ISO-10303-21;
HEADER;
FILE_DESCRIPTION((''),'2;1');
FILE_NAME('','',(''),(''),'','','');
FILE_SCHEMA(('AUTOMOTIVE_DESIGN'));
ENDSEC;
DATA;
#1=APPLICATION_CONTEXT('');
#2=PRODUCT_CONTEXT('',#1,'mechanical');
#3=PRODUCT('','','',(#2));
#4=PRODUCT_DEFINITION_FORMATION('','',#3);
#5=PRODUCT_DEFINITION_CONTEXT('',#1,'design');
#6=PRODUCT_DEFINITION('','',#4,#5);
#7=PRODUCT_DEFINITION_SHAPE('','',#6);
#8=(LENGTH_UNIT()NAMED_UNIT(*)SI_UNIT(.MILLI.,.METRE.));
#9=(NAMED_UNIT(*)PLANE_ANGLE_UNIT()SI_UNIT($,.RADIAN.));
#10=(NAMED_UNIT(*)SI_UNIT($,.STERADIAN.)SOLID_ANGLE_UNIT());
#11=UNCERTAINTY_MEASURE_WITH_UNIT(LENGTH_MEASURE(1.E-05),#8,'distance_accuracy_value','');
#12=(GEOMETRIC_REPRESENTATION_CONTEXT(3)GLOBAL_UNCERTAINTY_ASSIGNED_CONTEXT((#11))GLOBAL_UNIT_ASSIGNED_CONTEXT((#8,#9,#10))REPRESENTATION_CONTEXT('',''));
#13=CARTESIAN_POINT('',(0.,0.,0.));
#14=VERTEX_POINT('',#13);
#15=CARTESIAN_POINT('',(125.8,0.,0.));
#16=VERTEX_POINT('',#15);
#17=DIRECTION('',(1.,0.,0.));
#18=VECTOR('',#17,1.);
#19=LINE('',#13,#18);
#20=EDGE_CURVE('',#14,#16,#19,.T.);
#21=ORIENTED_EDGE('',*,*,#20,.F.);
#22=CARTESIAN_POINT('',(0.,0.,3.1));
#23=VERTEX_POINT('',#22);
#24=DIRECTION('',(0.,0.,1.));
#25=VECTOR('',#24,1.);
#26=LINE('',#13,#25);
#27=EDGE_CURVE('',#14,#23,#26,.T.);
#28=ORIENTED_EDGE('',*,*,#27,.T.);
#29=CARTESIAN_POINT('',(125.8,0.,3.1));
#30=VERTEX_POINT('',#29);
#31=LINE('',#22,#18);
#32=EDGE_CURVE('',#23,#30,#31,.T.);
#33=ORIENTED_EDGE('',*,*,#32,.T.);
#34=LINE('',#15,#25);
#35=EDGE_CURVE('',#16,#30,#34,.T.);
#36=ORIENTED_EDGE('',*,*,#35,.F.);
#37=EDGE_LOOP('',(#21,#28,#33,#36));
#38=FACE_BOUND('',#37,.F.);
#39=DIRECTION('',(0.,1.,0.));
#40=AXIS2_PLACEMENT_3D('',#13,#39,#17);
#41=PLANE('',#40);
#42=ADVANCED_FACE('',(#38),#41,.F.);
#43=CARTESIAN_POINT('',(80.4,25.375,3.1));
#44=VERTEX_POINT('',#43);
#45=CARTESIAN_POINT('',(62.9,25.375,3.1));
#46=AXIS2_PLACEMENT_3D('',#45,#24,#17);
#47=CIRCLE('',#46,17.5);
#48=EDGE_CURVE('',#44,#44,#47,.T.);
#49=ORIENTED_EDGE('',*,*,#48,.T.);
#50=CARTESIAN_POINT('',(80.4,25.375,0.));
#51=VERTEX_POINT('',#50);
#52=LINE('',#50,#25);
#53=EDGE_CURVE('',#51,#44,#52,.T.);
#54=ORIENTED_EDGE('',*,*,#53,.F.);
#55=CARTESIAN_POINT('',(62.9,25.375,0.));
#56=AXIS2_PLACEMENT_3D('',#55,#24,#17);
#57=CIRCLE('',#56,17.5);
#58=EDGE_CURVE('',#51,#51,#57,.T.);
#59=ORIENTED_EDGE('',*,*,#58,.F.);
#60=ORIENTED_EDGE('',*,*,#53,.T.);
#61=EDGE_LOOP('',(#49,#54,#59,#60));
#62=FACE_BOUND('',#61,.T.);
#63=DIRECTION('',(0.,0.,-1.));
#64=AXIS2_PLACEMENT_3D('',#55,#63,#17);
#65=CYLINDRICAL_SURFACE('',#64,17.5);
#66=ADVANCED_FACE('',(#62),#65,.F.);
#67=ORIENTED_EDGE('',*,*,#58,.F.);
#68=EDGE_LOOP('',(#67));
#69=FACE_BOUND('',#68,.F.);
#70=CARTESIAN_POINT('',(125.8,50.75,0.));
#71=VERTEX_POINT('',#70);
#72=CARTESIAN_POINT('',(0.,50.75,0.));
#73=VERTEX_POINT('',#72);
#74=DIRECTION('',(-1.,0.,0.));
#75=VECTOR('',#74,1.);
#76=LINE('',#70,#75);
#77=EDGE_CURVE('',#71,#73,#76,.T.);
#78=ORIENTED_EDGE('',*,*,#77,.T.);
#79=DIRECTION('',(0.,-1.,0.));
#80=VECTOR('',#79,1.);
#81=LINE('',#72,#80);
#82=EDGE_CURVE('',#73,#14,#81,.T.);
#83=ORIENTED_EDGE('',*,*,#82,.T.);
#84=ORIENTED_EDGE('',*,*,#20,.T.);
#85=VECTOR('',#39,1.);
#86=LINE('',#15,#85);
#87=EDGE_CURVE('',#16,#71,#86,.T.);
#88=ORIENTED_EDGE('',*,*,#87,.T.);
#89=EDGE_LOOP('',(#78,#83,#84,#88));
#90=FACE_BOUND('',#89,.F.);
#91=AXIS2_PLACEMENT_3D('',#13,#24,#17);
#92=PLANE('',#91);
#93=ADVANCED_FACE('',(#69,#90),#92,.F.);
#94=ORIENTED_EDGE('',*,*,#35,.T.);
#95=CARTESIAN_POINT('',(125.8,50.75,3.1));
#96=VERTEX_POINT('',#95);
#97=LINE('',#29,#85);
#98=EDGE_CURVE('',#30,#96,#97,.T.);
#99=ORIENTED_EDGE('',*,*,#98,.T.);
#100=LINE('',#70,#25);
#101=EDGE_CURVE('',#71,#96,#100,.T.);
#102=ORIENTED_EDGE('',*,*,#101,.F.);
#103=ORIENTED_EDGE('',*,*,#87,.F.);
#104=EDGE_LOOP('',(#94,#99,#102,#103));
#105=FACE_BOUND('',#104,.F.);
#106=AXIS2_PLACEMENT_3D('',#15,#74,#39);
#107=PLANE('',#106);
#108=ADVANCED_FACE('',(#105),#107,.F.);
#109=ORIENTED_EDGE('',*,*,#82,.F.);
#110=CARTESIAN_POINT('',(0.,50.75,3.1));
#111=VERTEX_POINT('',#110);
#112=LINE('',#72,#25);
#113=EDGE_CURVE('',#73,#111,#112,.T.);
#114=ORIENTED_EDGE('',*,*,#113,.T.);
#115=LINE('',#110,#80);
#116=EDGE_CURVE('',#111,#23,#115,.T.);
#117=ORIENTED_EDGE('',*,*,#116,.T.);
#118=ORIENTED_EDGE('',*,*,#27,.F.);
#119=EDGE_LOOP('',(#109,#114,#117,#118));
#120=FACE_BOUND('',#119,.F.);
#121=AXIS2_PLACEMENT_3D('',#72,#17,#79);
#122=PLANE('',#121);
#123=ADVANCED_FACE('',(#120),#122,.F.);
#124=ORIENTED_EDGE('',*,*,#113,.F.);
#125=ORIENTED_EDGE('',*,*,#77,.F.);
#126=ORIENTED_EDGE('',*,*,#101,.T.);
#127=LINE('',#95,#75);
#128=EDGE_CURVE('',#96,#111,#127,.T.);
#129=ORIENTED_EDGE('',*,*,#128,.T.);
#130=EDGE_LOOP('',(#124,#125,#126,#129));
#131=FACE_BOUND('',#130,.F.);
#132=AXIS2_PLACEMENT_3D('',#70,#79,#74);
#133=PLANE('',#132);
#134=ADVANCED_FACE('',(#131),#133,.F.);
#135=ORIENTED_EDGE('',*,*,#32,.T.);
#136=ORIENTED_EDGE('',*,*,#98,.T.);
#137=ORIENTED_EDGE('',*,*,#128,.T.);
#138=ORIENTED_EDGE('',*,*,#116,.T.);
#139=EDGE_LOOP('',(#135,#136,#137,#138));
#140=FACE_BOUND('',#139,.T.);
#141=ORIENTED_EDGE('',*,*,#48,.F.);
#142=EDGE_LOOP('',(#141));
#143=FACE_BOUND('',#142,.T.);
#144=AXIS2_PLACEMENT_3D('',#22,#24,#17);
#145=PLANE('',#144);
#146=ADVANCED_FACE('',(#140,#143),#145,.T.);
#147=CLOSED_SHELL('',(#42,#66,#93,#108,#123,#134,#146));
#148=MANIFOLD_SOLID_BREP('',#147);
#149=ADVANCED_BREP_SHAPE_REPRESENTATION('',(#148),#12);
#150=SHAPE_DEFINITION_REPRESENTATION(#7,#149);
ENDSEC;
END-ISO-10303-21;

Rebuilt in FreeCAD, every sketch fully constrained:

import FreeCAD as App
import Part
import Sketcher
Q = App.Units.Quantity


def add_polygon(sketch, points):
    """Adds a closed chain of lines whose ends are joined by coincident constraints."""
    first, n = sketch.GeometryCount, len(points)
    for a, b in zip(points, points[1:] + points[:1]):
        sketch.addGeometry(Part.LineSegment(App.Vector(*a, 0), App.Vector(*b, 0)), False)
    for i in range(n):
        sketch.addConstraint(Sketcher.Constraint("Coincident", first + i, 2, first + (i + 1) % n, 1))

doc = App.newDocument("Part")
body = doc.addObject("PartDesign::Body", "Body")

# Sketch on XY plane
sketch1 = body.newObject("Sketcher::SketchObject", "Sketch")
sketch1.AttachmentSupport = (doc.getObject("XY_Plane"), [""])
sketch1.MapMode = "FlatFace"
add_polygon(sketch1, [(0, 51), (0, 0), (126, 0), (126, 51)])  # lines 0-3
sketch1.addGeometry(Part.Circle(App.Vector(63, 25, 0), App.Vector(0, 0, 1), 18), False)  # 4
sketch1.addConstraint(Sketcher.Constraint("Vertical", 0))
sketch1.addConstraint(Sketcher.Constraint("Horizontal", 1))
sketch1.addConstraint(Sketcher.Constraint("Vertical", 2))
sketch1.addConstraint(Sketcher.Constraint("Horizontal", 3))
sketch1.addConstraint(Sketcher.Constraint("Coincident", 0, 2, -1, 1))
sketch1.addConstraint(Sketcher.Constraint("Diameter", 4, Q("35 mm")))
sketch1.addConstraint(Sketcher.Constraint("DistanceX", 1, 1, 1, 2, Q("125.8 mm")))
sketch1.addConstraint(Sketcher.Constraint("DistanceY", 0, 2, 0, 1, Q("50.75 mm")))
sketch1.addConstraint(Sketcher.Constraint("DistanceX", -1, 1, 4, 3, Q("62.9 mm")))
sketch1.addConstraint(Sketcher.Constraint("DistanceY", -1, 1, 4, 3, Q("25.375 mm")))
pad1 = body.newObject("PartDesign::Pad", "Pad")
pad1.Profile = sketch1
pad1.Length = 3.1

doc.recompute()
